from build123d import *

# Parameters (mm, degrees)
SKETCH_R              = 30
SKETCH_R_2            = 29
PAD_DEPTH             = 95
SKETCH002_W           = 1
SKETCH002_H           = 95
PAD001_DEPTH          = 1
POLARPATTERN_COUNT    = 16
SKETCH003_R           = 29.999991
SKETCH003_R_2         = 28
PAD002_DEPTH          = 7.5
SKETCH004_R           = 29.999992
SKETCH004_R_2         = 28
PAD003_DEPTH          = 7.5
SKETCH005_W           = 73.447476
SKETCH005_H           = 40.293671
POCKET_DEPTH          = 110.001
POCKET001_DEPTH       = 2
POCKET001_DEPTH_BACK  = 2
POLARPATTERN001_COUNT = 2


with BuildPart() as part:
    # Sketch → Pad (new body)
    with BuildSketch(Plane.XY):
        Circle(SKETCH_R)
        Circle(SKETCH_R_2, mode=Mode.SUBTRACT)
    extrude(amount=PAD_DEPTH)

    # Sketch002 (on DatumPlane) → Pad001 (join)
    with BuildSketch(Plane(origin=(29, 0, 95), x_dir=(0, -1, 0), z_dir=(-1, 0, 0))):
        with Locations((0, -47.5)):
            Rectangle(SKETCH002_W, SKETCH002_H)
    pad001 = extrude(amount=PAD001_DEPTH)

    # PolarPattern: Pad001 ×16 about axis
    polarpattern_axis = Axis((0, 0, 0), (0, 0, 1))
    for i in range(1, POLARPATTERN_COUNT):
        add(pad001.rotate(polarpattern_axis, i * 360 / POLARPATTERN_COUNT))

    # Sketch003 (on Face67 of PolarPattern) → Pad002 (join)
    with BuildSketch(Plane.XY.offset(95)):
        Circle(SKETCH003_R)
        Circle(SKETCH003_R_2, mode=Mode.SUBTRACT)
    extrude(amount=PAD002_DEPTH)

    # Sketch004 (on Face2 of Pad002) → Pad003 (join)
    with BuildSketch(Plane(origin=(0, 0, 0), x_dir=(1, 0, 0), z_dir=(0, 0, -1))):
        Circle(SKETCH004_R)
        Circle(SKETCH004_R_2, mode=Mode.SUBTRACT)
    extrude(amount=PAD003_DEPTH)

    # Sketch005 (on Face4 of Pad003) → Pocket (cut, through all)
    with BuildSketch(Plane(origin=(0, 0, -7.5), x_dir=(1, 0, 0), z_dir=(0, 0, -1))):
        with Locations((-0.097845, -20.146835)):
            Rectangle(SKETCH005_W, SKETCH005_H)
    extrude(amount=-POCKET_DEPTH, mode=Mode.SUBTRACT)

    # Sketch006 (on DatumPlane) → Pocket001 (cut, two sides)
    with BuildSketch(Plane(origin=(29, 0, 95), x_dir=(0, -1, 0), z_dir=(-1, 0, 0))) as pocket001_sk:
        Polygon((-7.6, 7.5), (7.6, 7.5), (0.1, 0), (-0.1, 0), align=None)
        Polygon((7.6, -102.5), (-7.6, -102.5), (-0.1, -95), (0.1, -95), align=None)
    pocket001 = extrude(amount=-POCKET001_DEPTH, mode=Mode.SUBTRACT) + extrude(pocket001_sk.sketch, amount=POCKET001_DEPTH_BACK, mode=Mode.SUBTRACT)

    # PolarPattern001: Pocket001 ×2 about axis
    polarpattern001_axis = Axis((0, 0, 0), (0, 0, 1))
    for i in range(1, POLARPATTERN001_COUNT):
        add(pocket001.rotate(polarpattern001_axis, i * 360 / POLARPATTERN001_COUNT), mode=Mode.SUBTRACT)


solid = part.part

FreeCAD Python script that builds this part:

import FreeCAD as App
import Part
import Sketcher

V = App.Vector
Q = App.Units.Quantity

doc = App.newDocument("Part")
body = doc.addObject("PartDesign::Body", "Body")

sketch1 = body.newObject("Sketcher::SketchObject", "Sketch")
sketch1.AttachmentSupport = (doc.getObject("XY_Plane"), [""])
sketch1.MapMode = "FlatFace"
sketch1.addGeometry(Part.Circle(V(0, 0, 0), V(0, 0, 1), 30), False)
sketch1.addGeometry(Part.Circle(V(0, 0, 0), V(0, 0, 1), 29), False)
sketch1.addConstraint(Sketcher.Constraint("Coincident", 0, 3, -1, 1))
sketch1.addConstraint(Sketcher.Constraint("Coincident", 1, 3, -1, 1))
sketch1.addConstraint(Sketcher.Constraint("Diameter", 0, Q("60 mm")))
sketch1.addConstraint(Sketcher.Constraint("Diameter", 1, Q("58 mm")))
pad1 = body.newObject("PartDesign::Pad", "Pad")
pad1.Profile = sketch1
pad1.Length = 95

sketch2 = body.newObject("Sketcher::SketchObject", "Sketch001")
sketch2.AttachmentSupport = (doc.getObject("YZ_Plane"), [""])
sketch2.MapMode = "FlatFace"
sketch2.AttachmentOffset = App.Placement(V(0, 0, 29), App.Rotation())
sketch2.addGeometry(Part.LineSegment(V(0.5, 95, 0), V(0.5, 0, 0)), False)
sketch2.addGeometry(Part.LineSegment(V(0.5, 0, 0), V(-0.5, 0, 0)), False)
sketch2.addGeometry(Part.LineSegment(V(-0.5, 0, 0), V(-0.5, 95, 0)), False)
sketch2.addGeometry(Part.LineSegment(V(-0.5, 95, 0), V(0.5, 95, 0)), False)
sketch2.addConstraint(Sketcher.Constraint("Coincident", 0, 2, 1, 1))
sketch2.addConstraint(Sketcher.Constraint("Coincident", 1, 2, 2, 1))
sketch2.addConstraint(Sketcher.Constraint("Coincident", 2, 2, 3, 1))
sketch2.addConstraint(Sketcher.Constraint("Coincident", 3, 2, 0, 1))
sketch2.addConstraint(Sketcher.Constraint("Vertical", 0))
sketch2.addConstraint(Sketcher.Constraint("Horizontal", 1))
sketch2.addConstraint(Sketcher.Constraint("Vertical", 2))
sketch2.addConstraint(Sketcher.Constraint("Horizontal", 3))
sketch2.addConstraint(Sketcher.Constraint("Symmetric", 0, 2, 1, 2, -1, 1))
sketch2.addConstraint(Sketcher.Constraint("DistanceX", 1, 2, 1, 1, Q("1 mm")))
sketch2.addConstraint(Sketcher.Constraint("DistanceY", 0, 2, 0, 1, Q("95 mm")))
pad2 = body.newObject("PartDesign::Pad", "Pad001")
pad2.Profile = sketch2
pad2.Length = 1
pad2.Reversed = True
doc.recompute()

polarpattern = body.newObject("PartDesign::PolarPattern", "PolarPattern")
polarpattern.Originals = [pad2]
polarpattern.Axis = (doc.getObject("Z_Axis"), [""])
polarpattern.Angle = 360
polarpattern.Occurrences = 16
body.Tip = polarpattern

sketch3 = body.newObject("Sketcher::SketchObject", "Sketch002")
sketch3.AttachmentSupport = (doc.getObject("XY_Plane"), [""])
sketch3.MapMode = "FlatFace"
sketch3.AttachmentOffset = App.Placement(V(0, 0, 95), App.Rotation())
sketch3.addGeometry(Part.Circle(V(0, 0, 0), V(0, 0, 1), 30), False)
sketch3.addGeometry(Part.Circle(V(0, 0, 0), V(0, 0, 1), 28), False)
sketch3.addConstraint(Sketcher.Constraint("Coincident", 0, 3, -1, 1))
sketch3.addConstraint(Sketcher.Constraint("Coincident", 1, 3, -1, 1))
sketch3.addConstraint(Sketcher.Constraint("Diameter", 1, Q("56 mm")))
sketch3.addConstraint(Sketcher.Constraint("Diameter", 0, Q("59.999982 mm")))
pad3 = body.newObject("PartDesign::Pad", "Pad002")
pad3.Profile = sketch3
pad3.Length = 7.5

sketch4 = body.newObject("Sketcher::SketchObject", "Sketch003")
sketch4.AttachmentSupport = (doc.getObject("XY_Plane"), [""])
sketch4.MapMode = "FlatFace"
sketch4.addGeometry(Part.Circle(V(0, 0, 0), V(0, 0, 1), 30), False)
sketch4.addGeometry(Part.Circle(V(0, 0, 0), V(0, 0, 1), 28), False)
sketch4.addConstraint(Sketcher.Constraint("Coincident", 0, 3, -1, 1))
sketch4.addConstraint(Sketcher.Constraint("Coincident", 1, 3, -1, 1))
sketch4.addConstraint(Sketcher.Constraint("Diameter", 1, Q("56 mm")))
sketch4.addConstraint(Sketcher.Constraint("Diameter", 0, Q("59.999984 mm")))
pad4 = body.newObject("PartDesign::Pad", "Pad003")
pad4.Profile = sketch4
pad4.Length = 7.5
pad4.Reversed = True

sketch5 = body.newObject("Sketcher::SketchObject", "Sketch004")
sketch5.AttachmentSupport = (doc.getObject("XY_Plane"), [""])
sketch5.MapMode = "FlatFace"
sketch5.AttachmentOffset = App.Placement(V(0, 0, -7.5), App.Rotation())
sketch5.addGeometry(Part.LineSegment(V(-37, 0, 0), V(-37, 40, 0)), False)
sketch5.addGeometry(Part.LineSegment(V(-37, 40, 0), V(37, 40, 0)), False)
sketch5.addGeometry(Part.LineSegment(V(37, 40, 0), V(37, 0, 0)), False)
sketch5.addGeometry(Part.LineSegment(V(37, 0, 0), V(-37, 0, 0)), False)
sketch5.addConstraint(Sketcher.Constraint("Coincident", 0, 2, 1, 1))
sketch5.addConstraint(Sketcher.Constraint("Coincident", 1, 2, 2, 1))
sketch5.addConstraint(Sketcher.Constraint("Coincident", 2, 2, 3, 1))
sketch5.addConstraint(Sketcher.Constraint("Coincident", 3, 2, 0, 1))
sketch5.addConstraint(Sketcher.Constraint("Vertical", 0))
sketch5.addConstraint(Sketcher.Constraint("Horizontal", 1))
sketch5.addConstraint(Sketcher.Constraint("Vertical", 2))
sketch5.addConstraint(Sketcher.Constraint("Horizontal", 3))
sketch5.addConstraint(Sketcher.Constraint("PointOnObject", 2, 2, -1))
sketch5.addConstraint(Sketcher.Constraint("DistanceY", 0, 1, 0, 2, Q("40.293671 mm")))
sketch5.addConstraint(Sketcher.Constraint("DistanceX", 1, 1, 1, 2, Q("73.447476 mm")))
sketch5.addConstraint(Sketcher.Constraint("DistanceX", 0, 2, -1, 1, Q("36.821583 mm")))
pocket1 = body.newObject("PartDesign::Pocket", "Pocket")
pocket1.Profile = sketch5
pocket1.Type = "ThroughAll"
pocket1.Reversed = True

sketch6 = body.newObject("Sketcher::SketchObject", "Sketch005")
sketch6.AttachmentSupport = (doc.getObject("YZ_Plane"), [""])
sketch6.MapMode = "FlatFace"
sketch6.AttachmentOffset = App.Placement(V(0, 0, 29), App.Rotation())
sketch6.addGeometry(Part.LineSegment(V(-7.6, 102.5, 0), V(7.6, 102.5, 0)), False)
sketch6.addGeometry(Part.LineSegment(V(7.6, 102.5, 0), V(0.1, 95, 0)), False)
sketch6.addGeometry(Part.LineSegment(V(0.1, 95, 0), V(-0.1, 95, 0)), False)
sketch6.addGeometry(Part.LineSegment(V(-0.1, 95, 0), V(-7.6, 102.5, 0)), False)
sketch6.addGeometry(Part.LineSegment(V(7.6, -7.5, 0), V(-7.6, -7.5, 0)), False)
sketch6.addGeometry(Part.LineSegment(V(-7.6, -7.5, 0), V(-0.1, 0, 0)), False)
sketch6.addGeometry(Part.LineSegment(V(-0.1, 0, 0), V(0.1, 0, 0)), False)
sketch6.addGeometry(Part.LineSegment(V(0.1, 0, 0), V(7.6, -7.5, 0)), False)
sketch6.addConstraint(Sketcher.Constraint("Coincident", 0, 2, 1, 1))
sketch6.addConstraint(Sketcher.Constraint("Coincident", 1, 2, 2, 1))
sketch6.addConstraint(Sketcher.Constraint("Coincident", 2, 2, 3, 1))
sketch6.addConstraint(Sketcher.Constraint("Coincident", 3, 2, 0, 1))
sketch6.addConstraint(Sketcher.Constraint("Coincident", 4, 2, 5, 1))
sketch6.addConstraint(Sketcher.Constraint("Coincident", 5, 2, 6, 1))
sketch6.addConstraint(Sketcher.Constraint("Coincident", 6, 2, 7, 1))
sketch6.addConstraint(Sketcher.Constraint("Coincident", 7, 2, 4, 1))
sketch6.addConstraint(Sketcher.Constraint("Horizontal", 0))
sketch6.addConstraint(Sketcher.Constraint("Horizontal", 2))
sketch6.addConstraint(Sketcher.Constraint("Horizontal", 4))
sketch6.addConstraint(Sketcher.Constraint("Horizontal", 6))
sketch6.addConstraint(Sketcher.Constraint("Symmetric", 5, 2, 6, 2, -1, 1))
sketch6.addConstraint(Sketcher.Constraint("Perpendicular", 1, 3))
sketch6.addConstraint(Sketcher.Constraint("Perpendicular", 3, 5))
sketch6.addConstraint(Sketcher.Constraint("Perpendicular", 5, 7))
sketch6.addConstraint(Sketcher.Constraint("Vertical", 3, 2, 4, 2))
sketch6.addConstraint(Sketcher.Constraint("Vertical", 2, 2, 5, 2))
sketch6.addConstraint(Sketcher.Constraint("Vertical", 1, 2, 6, 2))
sketch6.addConstraint(Sketcher.Constraint("Vertical", 0, 2, 7, 2))
sketch6.addConstraint(Sketcher.Constraint("DistanceX", 0, 1, 0, 2, Q("15.2 mm")))
sketch6.addConstraint(Sketcher.Constraint("DistanceX", 2, 2, 2, 1, Q("0.2 mm")))
sketch6.addConstraint(Sketcher.Constraint("DistanceY", -1, 1, 1, 2, Q("95 mm")))
pocket2 = body.newObject("PartDesign::Pocket", "Pocket001")
pocket2.Profile = sketch6
pocket2.Type = "TwoLengths"
pocket2.Length = 2
pocket2.Length2 = 2
pocket2.Reversed = True
doc.recompute()

polarpattern2 = body.newObject("PartDesign::PolarPattern", "PolarPattern001")
polarpattern2.Originals = [pocket2]
polarpattern2.Axis = (doc.getObject("Z_Axis"), [""])
polarpattern2.Angle = 360
polarpattern2.Occurrences = 2
body.Tip = polarpattern2

doc.recompute()
